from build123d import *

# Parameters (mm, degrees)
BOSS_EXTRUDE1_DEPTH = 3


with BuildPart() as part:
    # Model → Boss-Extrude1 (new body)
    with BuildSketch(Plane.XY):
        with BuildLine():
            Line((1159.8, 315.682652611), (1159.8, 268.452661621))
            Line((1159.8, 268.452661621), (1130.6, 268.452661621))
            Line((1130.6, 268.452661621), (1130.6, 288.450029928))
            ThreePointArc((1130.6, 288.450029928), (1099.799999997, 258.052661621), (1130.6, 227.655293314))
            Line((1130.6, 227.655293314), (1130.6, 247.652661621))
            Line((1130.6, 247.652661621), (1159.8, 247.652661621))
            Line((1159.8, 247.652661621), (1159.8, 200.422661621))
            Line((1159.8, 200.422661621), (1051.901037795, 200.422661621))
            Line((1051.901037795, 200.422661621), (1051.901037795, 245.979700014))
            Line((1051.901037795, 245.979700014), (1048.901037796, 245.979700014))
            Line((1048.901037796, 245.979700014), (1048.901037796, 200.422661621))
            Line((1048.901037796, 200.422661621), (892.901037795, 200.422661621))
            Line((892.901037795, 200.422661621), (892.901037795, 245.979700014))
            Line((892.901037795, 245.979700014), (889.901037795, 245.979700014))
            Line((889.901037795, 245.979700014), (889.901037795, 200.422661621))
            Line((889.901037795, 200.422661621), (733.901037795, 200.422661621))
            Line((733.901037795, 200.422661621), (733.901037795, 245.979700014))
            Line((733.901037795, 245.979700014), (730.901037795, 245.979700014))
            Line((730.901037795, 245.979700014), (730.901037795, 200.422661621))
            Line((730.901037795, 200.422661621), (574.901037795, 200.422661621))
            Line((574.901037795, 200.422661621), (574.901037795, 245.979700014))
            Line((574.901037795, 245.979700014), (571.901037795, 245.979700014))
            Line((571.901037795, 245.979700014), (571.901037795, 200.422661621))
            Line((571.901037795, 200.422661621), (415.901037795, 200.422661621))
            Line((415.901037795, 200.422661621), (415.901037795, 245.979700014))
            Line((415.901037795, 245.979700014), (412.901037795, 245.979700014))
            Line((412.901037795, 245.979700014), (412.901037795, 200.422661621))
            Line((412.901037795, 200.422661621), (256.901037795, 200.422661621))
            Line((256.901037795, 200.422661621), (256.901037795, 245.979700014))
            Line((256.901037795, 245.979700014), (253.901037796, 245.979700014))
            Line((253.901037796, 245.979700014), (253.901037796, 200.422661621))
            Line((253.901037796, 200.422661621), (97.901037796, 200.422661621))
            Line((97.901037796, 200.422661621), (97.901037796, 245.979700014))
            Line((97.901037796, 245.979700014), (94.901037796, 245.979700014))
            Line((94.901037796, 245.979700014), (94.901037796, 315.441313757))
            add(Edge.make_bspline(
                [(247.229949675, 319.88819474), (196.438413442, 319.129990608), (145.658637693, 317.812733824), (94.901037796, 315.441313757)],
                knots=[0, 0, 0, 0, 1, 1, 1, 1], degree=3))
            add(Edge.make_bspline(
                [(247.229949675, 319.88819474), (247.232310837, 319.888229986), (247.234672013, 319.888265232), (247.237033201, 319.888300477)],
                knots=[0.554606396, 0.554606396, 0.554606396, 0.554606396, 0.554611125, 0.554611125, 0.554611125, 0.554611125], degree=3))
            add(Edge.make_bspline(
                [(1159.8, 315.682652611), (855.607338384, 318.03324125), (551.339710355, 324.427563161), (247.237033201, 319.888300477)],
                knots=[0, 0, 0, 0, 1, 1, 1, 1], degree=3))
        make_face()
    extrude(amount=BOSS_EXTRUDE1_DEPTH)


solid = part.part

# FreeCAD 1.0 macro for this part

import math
import FreeCAD as App
import Part
import Sketcher

doc = App.newDocument("Part")
body = doc.addObject("PartDesign::Body", "Body")

# Sketch on XY plane
sketch1 = body.newObject("Sketcher::SketchObject", "Sketch")
sketch1.AttachmentSupport = (doc.getObject("XY_Plane"), [""])
sketch1.MapMode = "FlatFace"
sketch1.addGeometry([
    Part.LineSegment(App.Vector(1159.8, 268.452662, 0), App.Vector(1159.8, 315.682653, 0)),  # 0
    Part.BSplineCurve([App.Vector(1159.8, 315.682653, 0), App.Vector(855.607338, 318.033241, 0), App.Vector(551.33971, 324.427563, 0), App.Vector(247.237033, 319.8883, 0)], [4, 4], [0, 1], False, 3, [1, 1, 1, 1], False),  # 1
    Part.BSplineCurve([App.Vector(247.22995, 319.888195, 0), App.Vector(247.232311, 319.88823, 0), App.Vector(247.234672, 319.888265, 0), App.Vector(247.237033, 319.8883, 0)], [4, 4], [0.554606396, 0.554611125], False, 3, [1, 1, 1, 1], False),  # 2
    Part.BSplineCurve([App.Vector(247.22995, 319.888195, 0), App.Vector(196.438413, 319.129991, 0), App.Vector(145.658638, 317.812734, 0), App.Vector(94.901038, 315.441314, 0)], [4, 4], [0, 1], False, 3, [1, 1, 1, 1], False),  # 3
    Part.LineSegment(App.Vector(94.901038, 315.441314, 0), App.Vector(94.901038, 245.9797, 0)),  # 4
    Part.LineSegment(App.Vector(94.901038, 245.9797, 0), App.Vector(97.901038, 245.9797, 0)),  # 5
    Part.LineSegment(App.Vector(97.901038, 245.9797, 0), App.Vector(97.901038, 200.422662, 0)),  # 6
    Part.LineSegment(App.Vector(97.901038, 200.422662, 0), App.Vector(253.901038, 200.422662, 0)),  # 7
    Part.LineSegment(App.Vector(253.901038, 200.422662, 0), App.Vector(253.901038, 245.9797, 0)),  # 8
    Part.LineSegment(App.Vector(253.901038, 245.9797, 0), App.Vector(256.901038, 245.9797, 0)),  # 9
    Part.LineSegment(App.Vector(256.901038, 245.9797, 0), App.Vector(256.901038, 200.422662, 0)),  # 10
    Part.LineSegment(App.Vector(256.901038, 200.422662, 0), App.Vector(412.901038, 200.422662, 0)),  # 11
    Part.LineSegment(App.Vector(412.901038, 200.422662, 0), App.Vector(412.901038, 245.9797, 0)),  # 12
    Part.LineSegment(App.Vector(412.901038, 245.9797, 0), App.Vector(415.901038, 245.9797, 0)),  # 13
    Part.LineSegment(App.Vector(415.901038, 245.9797, 0), App.Vector(415.901038, 200.422662, 0)),  # 14
    Part.LineSegment(App.Vector(415.901038, 200.422662, 0), App.Vector(571.901038, 200.422662, 0)),  # 15
    Part.LineSegment(App.Vector(571.901038, 200.422662, 0), App.Vector(571.901038, 245.9797, 0)),  # 16
    Part.LineSegment(App.Vector(571.901038, 245.9797, 0), App.Vector(574.901038, 245.9797, 0)),  # 17
    Part.LineSegment(App.Vector(574.901038, 245.9797, 0), App.Vector(574.901038, 200.422662, 0)),  # 18
    Part.LineSegment(App.Vector(574.901038, 200.422662, 0), App.Vector(730.901038, 200.422662, 0)),  # 19
    Part.LineSegment(App.Vector(730.901038, 200.422662, 0), App.Vector(730.901038, 245.9797, 0)),  # 20
    Part.LineSegment(App.Vector(730.901038, 245.9797, 0), App.Vector(733.901038, 245.9797, 0)),  # 21
    Part.LineSegment(App.Vector(733.901038, 245.9797, 0), App.Vector(733.901038, 200.422662, 0)),  # 22
    Part.LineSegment(App.Vector(733.901038, 200.422662, 0), App.Vector(889.901038, 200.422662, 0)),  # 23
    Part.LineSegment(App.Vector(889.901038, 200.422662, 0), App.Vector(889.901038, 245.9797, 0)),  # 24
    Part.LineSegment(App.Vector(889.901038, 245.9797, 0), App.Vector(892.901038, 245.9797, 0)),  # 25
    Part.LineSegment(App.Vector(892.901038, 245.9797, 0), App.Vector(892.901038, 200.422662, 0)),  # 26
    Part.LineSegment(App.Vector(892.901038, 200.422662, 0), App.Vector(1048.901038, 200.422662, 0)),  # 27
    Part.LineSegment(App.Vector(1048.901038, 200.422662, 0), App.Vector(1048.901038, 245.9797, 0)),  # 28
    Part.LineSegment(App.Vector(1048.901038, 245.9797, 0), App.Vector(1051.901038, 245.9797, 0)),  # 29
    Part.LineSegment(App.Vector(1051.901038, 245.9797, 0), App.Vector(1051.901038, 200.422662, 0)),  # 30
    Part.LineSegment(App.Vector(1051.901038, 200.422662, 0), App.Vector(1159.8, 200.422662, 0)),  # 31
    Part.LineSegment(App.Vector(1159.8, 200.422662, 0), App.Vector(1159.8, 247.652662, 0)),  # 32
    Part.LineSegment(App.Vector(1159.8, 247.652662, 0), App.Vector(1130.6, 247.652662, 0)),  # 33
    Part.LineSegment(App.Vector(1130.6, 247.652662, 0), App.Vector(1130.6, 227.655293, 0)),  # 34
    Part.ArcOfCircle(Part.Circle(App.Vector(1130.2, 258.052662, 0), App.Vector(0, 0, 1), 30.4), math.radians(89.246086), math.radians(270.753914)),  # 35
    Part.LineSegment(App.Vector(1130.6, 288.45003, 0), App.Vector(1130.6, 268.452662, 0)),  # 36
    Part.LineSegment(App.Vector(1130.6, 268.452662, 0), App.Vector(1159.8, 268.452662, 0)),  # 37
], False)
sketch1.addConstraint([
    Sketcher.Constraint("Block", 1),
    Sketcher.Constraint("Block", 2),
    Sketcher.Constraint("Block", 3),
    Sketcher.Constraint("Coincident", 0, 2, 1, 1),
    Sketcher.Constraint("Coincident", 3, 2, 4, 1),
    Sketcher.Constraint("Coincident", 4, 2, 5, 1),
    Sketcher.Constraint("Coincident", 5, 2, 6, 1),
    Sketcher.Constraint("Coincident", 6, 2, 7, 1),
    Sketcher.Constraint("Coincident", 7, 2, 8, 1),
    Sketcher.Constraint("Coincident", 8, 2, 9, 1),
    Sketcher.Constraint("Coincident", 9, 2, 10, 1),
    Sketcher.Constraint("Coincident", 10, 2, 11, 1),
    Sketcher.Constraint("Coincident", 11, 2, 12, 1),
    Sketcher.Constraint("Coincident", 12, 2, 13, 1),
    Sketcher.Constraint("Coincident", 13, 2, 14, 1),
    Sketcher.Constraint("Coincident", 14, 2, 15, 1),
    Sketcher.Constraint("Coincident", 15, 2, 16, 1),
    Sketcher.Constraint("Coincident", 16, 2, 17, 1),
    Sketcher.Constraint("Coincident", 17, 2, 18, 1),
    Sketcher.Constraint("Coincident", 18, 2, 19, 1),
    Sketcher.Constraint("Coincident", 19, 2, 20, 1),
    Sketcher.Constraint("Coincident", 20, 2, 21, 1),
    Sketcher.Constraint("Coincident", 21, 2, 22, 1),
    Sketcher.Constraint("Coincident", 22, 2, 23, 1),
    Sketcher.Constraint("Coincident", 23, 2, 24, 1),
    Sketcher.Constraint("Coincident", 24, 2, 25, 1),
    Sketcher.Constraint("Coincident", 25, 2, 26, 1),
    Sketcher.Constraint("Coincident", 26, 2, 27, 1),
    Sketcher.Constraint("Coincident", 27, 2, 28, 1),
    Sketcher.Constraint("Coincident", 28, 2, 29, 1),
    Sketcher.Constraint("Coincident", 29, 2, 30, 1),
    Sketcher.Constraint("Coincident", 30, 2, 31, 1),
    Sketcher.Constraint("Coincident", 31, 2, 32, 1),
    Sketcher.Constraint("Coincident", 32, 2, 33, 1),
    Sketcher.Constraint("Coincident", 33, 2, 34, 1),
    Sketcher.Constraint("Coincident", 34, 2, 35, 2),
    Sketcher.Constraint("Coincident", 35, 1, 36, 1),
    Sketcher.Constraint("Coincident", 36, 2, 37, 1),
    Sketcher.Constraint("Coincident", 37, 2, 0, 1),
    Sketcher.Constraint("Vertical", 0),
    Sketcher.Constraint("Vertical", 4),
    Sketcher.Constraint("Horizontal", 5),
    Sketcher.Constraint("Vertical", 6),
    Sketcher.Constraint("Horizontal", 7),
    Sketcher.Constraint("Vertical", 8),
    Sketcher.Constraint("Horizontal", 9),
    Sketcher.Constraint("Vertical", 10),
    Sketcher.Constraint("Horizontal", 11),
    Sketcher.Constraint("Vertical", 12),
    Sketcher.Constraint("Horizontal", 13),
    Sketcher.Constraint("Vertical", 14),
    Sketcher.Constraint("Horizontal", 15),
    Sketcher.Constraint("Vertical", 16),
    Sketcher.Constraint("Horizontal", 17),
    Sketcher.Constraint("Vertical", 18),
    Sketcher.Constraint("Horizontal", 19),
    Sketcher.Constraint("Vertical", 20),
    Sketcher.Constraint("Horizontal", 21),
    Sketcher.Constraint("Vertical", 22),
    Sketcher.Constraint("Horizontal", 23),
    Sketcher.Constraint("Vertical", 24),
    Sketcher.Constraint("Horizontal", 25),
    Sketcher.Constraint("Vertical", 26),
    Sketcher.Constraint("Horizontal", 27),
    Sketcher.Constraint("Vertical", 28),
    Sketcher.Constraint("Horizontal", 29),
    Sketcher.Constraint("Vertical", 30),
    Sketcher.Constraint("Horizontal", 31),
    Sketcher.Constraint("Vertical", 32),
    Sketcher.Constraint("Horizontal", 33),
    Sketcher.Constraint("Vertical", 34),
    Sketcher.Constraint("Vertical", 36),
    Sketcher.Constraint("Horizontal", 37),
    Sketcher.Constraint("Horizontal", 5, 2, 8, 2),
    Sketcher.Constraint("Horizontal", 7, 2, 10, 2),
    Sketcher.Constraint("Horizontal", 9, 2, 12, 2),
    Sketcher.Constraint("Horizontal", 11, 2, 14, 2),
    Sketcher.Constraint("Horizontal", 13, 2, 16, 2),
    Sketcher.Constraint("Horizontal", 15, 2, 18, 2),
    Sketcher.Constraint("Horizontal", 17, 2, 20, 2),
    Sketcher.Constraint("Horizontal", 19, 2, 22, 2),
    Sketcher.Constraint("Horizontal", 21, 2, 24, 2),
    Sketcher.Constraint("Horizontal", 23, 2, 26, 2),
    Sketcher.Constraint("Horizontal", 25, 2, 28, 2),
    Sketcher.Constraint("Horizontal", 27, 2, 30, 2),
    Sketcher.Constraint("Vertical", 0, 2, 31, 2),
    Sketcher.Constraint("Vertical", 34, 2, 35, 1),
    Sketcher.Constraint("Equal", 5, 9),
    Sketcher.Constraint("Equal", 7, 11),
    Sketcher.Constraint("Equal", 9, 13),
    Sketcher.Constraint("Equal", 11, 15),
    Sketcher.Constraint("Equal", 13, 17),
    Sketcher.Constraint("Equal", 15, 19),
    Sketcher.Constraint("Equal", 17, 21),
    Sketcher.Constraint("Equal", 19, 23),
    Sketcher.Constraint("Equal", 21, 25),
    Sketcher.Constraint("Equal", 23, 27),
    Sketcher.Constraint("Equal", 25, 29),
    Sketcher.Constraint("Equal", 34, 36),
    Sketcher.Constraint("Radius", 35, 30.4),
    Sketcher.Constraint("DistanceX", 5, 1, 5, 2, 3.0),
    Sketcher.Constraint("DistanceX", 7, 1, 7, 2, 156.0),
    Sketcher.Constraint("DistanceX", 33, 2, 33, 1, 29.2),
    Sketcher.Constraint("DistanceY", 32, 1, 32, 2, 47.23),
    Sketcher.Constraint("DistanceX", -1, 1, 35, 3, 1130.2),
    Sketcher.Constraint("DistanceY", 32, 2, 35, 3, 10.4),
    Sketcher.Constraint("DistanceY", 0, 1, 0, 2, 47.229991),
    Sketcher.Constraint("DistanceY", 6, 2, 6, 1, 45.557038),
])
pad1 = body.newObject("PartDesign::Pad", "Pad")
pad1.Profile = sketch1
pad1.Length = 3

doc.recompute()
